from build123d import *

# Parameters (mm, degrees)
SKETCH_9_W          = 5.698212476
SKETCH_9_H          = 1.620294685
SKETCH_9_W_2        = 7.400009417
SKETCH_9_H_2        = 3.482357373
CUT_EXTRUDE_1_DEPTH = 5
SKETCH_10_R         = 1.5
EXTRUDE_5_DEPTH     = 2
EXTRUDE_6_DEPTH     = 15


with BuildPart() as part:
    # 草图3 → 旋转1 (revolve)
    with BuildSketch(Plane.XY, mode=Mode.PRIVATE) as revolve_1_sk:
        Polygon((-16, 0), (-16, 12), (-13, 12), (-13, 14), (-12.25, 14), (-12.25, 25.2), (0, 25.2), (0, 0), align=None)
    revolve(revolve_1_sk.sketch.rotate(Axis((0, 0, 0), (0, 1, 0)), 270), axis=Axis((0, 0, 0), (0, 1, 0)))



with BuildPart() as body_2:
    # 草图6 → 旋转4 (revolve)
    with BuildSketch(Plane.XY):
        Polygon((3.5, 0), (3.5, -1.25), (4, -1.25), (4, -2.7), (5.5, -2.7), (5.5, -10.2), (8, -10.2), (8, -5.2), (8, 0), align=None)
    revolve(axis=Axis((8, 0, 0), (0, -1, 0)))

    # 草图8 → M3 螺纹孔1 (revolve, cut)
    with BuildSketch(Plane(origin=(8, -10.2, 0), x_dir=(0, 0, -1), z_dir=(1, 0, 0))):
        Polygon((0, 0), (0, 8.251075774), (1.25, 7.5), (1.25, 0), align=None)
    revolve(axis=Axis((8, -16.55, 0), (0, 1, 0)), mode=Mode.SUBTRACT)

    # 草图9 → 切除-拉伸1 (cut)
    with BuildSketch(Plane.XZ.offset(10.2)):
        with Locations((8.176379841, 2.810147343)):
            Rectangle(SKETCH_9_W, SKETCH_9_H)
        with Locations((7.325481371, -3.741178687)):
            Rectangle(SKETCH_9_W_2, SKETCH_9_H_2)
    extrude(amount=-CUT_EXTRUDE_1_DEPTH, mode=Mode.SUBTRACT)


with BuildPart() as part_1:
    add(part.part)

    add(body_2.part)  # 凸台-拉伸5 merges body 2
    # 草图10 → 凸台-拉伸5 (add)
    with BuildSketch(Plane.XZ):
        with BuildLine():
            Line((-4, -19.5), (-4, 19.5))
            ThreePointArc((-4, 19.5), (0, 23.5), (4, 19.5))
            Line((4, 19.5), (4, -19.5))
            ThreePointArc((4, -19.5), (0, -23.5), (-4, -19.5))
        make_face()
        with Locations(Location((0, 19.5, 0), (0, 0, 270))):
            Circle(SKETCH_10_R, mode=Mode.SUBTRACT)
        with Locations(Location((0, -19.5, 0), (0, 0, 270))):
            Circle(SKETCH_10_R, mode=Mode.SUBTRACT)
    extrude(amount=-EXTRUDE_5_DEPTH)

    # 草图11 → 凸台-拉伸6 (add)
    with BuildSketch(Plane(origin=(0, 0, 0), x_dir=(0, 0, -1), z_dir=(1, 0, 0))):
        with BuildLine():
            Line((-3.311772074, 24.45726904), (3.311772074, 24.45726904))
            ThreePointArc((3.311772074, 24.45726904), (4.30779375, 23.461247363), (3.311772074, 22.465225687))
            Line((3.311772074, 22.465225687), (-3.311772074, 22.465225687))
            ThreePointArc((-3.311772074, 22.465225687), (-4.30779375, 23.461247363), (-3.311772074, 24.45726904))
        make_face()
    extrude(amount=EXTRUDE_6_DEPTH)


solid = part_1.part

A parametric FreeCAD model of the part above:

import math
import FreeCAD as App
import Part
import Sketcher
from FreeCAD import Vector
Q = App.Units.Quantity

doc = App.newDocument("Part")
body = doc.addObject("PartDesign::Body", "Body")

# Sketch on XY plane
sketch1 = body.newObject("Sketcher::SketchObject", "Sketch")
sketch1.AttachmentSupport = (doc.getObject("XY_Plane"), [""])
sketch1.MapMode = "FlatFace"
sketch1.addGeometry(Part.LineSegment(Vector(-16, 12, 0), Vector(-16, 0, 0)), False)
sketch1.addGeometry(Part.LineSegment(Vector(-16, 0, 0), Vector(0, 0, 0)), False)
sketch1.addGeometry(Part.LineSegment(Vector(0, 0, 0), Vector(0, 25.2, 0)), False)
sketch1.addGeometry(Part.LineSegment(Vector(0, 25.2, 0), Vector(-12.2, 25.2, 0)), False)
sketch1.addGeometry(Part.LineSegment(Vector(-12.2, 25.2, 0), Vector(-12.2, 14, 0)), False)
sketch1.addGeometry(Part.LineSegment(Vector(-12.2, 14, 0), Vector(-13, 14, 0)), False)
sketch1.addGeometry(Part.LineSegment(Vector(-13, 14, 0), Vector(-13, 12, 0)), False)
sketch1.addGeometry(Part.LineSegment(Vector(-13, 12, 0), Vector(-16, 12, 0)), False)
sketch1.addConstraint(Sketcher.Constraint("Coincident", 0, 2, 1, 1))
sketch1.addConstraint(Sketcher.Constraint("Coincident", 1, 2, 2, 1))
sketch1.addConstraint(Sketcher.Constraint("Coincident", 2, 2, 3, 1))
sketch1.addConstraint(Sketcher.Constraint("Coincident", 3, 2, 4, 1))
sketch1.addConstraint(Sketcher.Constraint("Coincident", 4, 2, 5, 1))
sketch1.addConstraint(Sketcher.Constraint("Coincident", 5, 2, 6, 1))
sketch1.addConstraint(Sketcher.Constraint("Coincident", 6, 2, 7, 1))
sketch1.addConstraint(Sketcher.Constraint("Coincident", 7, 2, 0, 1))
sketch1.addConstraint(Sketcher.Constraint("Vertical", 0))
sketch1.addConstraint(Sketcher.Constraint("Horizontal", 1))
sketch1.addConstraint(Sketcher.Constraint("Vertical", 2))
sketch1.addConstraint(Sketcher.Constraint("Horizontal", 3))
sketch1.addConstraint(Sketcher.Constraint("Vertical", 4))
sketch1.addConstraint(Sketcher.Constraint("Horizontal", 5))
sketch1.addConstraint(Sketcher.Constraint("Vertical", 6))
sketch1.addConstraint(Sketcher.Constraint("Horizontal", 7))
sketch1.addConstraint(Sketcher.Constraint("Coincident", 1, 2, -1, 1))
sketch1.addConstraint(Sketcher.Constraint("DistanceX", 1, 1, 1, 2, 16.0))
sketch1.addConstraint(Sketcher.Constraint("DistanceX", 7, 2, 7, 1, 3.0))
sketch1.addConstraint(Sketcher.Constraint("DistanceY", 0, 2, 0, 1, 12.0))
sketch1.addConstraint(Sketcher.Constraint("DistanceY", 6, 2, 6, 1, 2.0))
sketch1.addConstraint(Sketcher.Constraint("DistanceY", 2, 1, 2, 2, 25.2))
sketch1.addConstraint(Sketcher.Constraint("DistanceX", 3, 2, 3, 1, 12.25))
revolution = body.newObject("PartDesign::Revolution", "Revolution")
revolution.Profile = sketch1
revolution.ReferenceAxis = (sketch1, ["V_Axis"])
revolution.Angle = 360
body2 = doc.addObject("PartDesign::Body", "Body001")

# Sketch on XY plane
sketch2 = body2.newObject("Sketcher::SketchObject", "Sketch001")
sketch2.AttachmentSupport = (doc.getObject("XY_Plane001"), [""])
sketch2.MapMode = "FlatFace"
sketch2.addGeometry(Part.LineSegment(Vector(3.5, 0, 0), Vector(3.5, -1.2, 0)), False)
sketch2.addGeometry(Part.LineSegment(Vector(3.5, -1.2, 0), Vector(4, -1.2, 0)), False)
sketch2.addGeometry(Part.LineSegment(Vector(4, -1.2, 0), Vector(4, -2.7, 0)), False)
sketch2.addGeometry(Part.LineSegment(Vector(4, -2.7, 0), Vector(5.5, -2.7, 0)), False)
sketch2.addGeometry(Part.LineSegment(Vector(5.5, -2.7, 0), Vector(5.5, -10.2, 0)), False)
sketch2.addGeometry(Part.LineSegment(Vector(5.5, -10.2, 0), Vector(8, -10.2, 0)), False)
sketch2.addGeometry(Part.LineSegment(Vector(8, -10.2, 0), Vector(8, 0, 0)), False)
sketch2.addGeometry(Part.LineSegment(Vector(8, 0, 0), Vector(3.5, 0, 0)), False)
sketch2.addGeometry(Part.LineSegment(Vector(8, 0, 0), Vector(8, -10.2, 0)), True)  # axis
sketch2.addConstraint(Sketcher.Constraint("Coincident", 0, 2, 1, 1))
sketch2.addConstraint(Sketcher.Constraint("Coincident", 1, 2, 2, 1))
sketch2.addConstraint(Sketcher.Constraint("Coincident", 2, 2, 3, 1))
sketch2.addConstraint(Sketcher.Constraint("Coincident", 3, 2, 4, 1))
sketch2.addConstraint(Sketcher.Constraint("Coincident", 4, 2, 5, 1))
sketch2.addConstraint(Sketcher.Constraint("Coincident", 5, 2, 6, 1))
sketch2.addConstraint(Sketcher.Constraint("Coincident", 6, 2, 7, 1))
sketch2.addConstraint(Sketcher.Constraint("Coincident", 7, 2, 0, 1))
sketch2.addConstraint(Sketcher.Constraint("Vertical", 0))
sketch2.addConstraint(Sketcher.Constraint("Horizontal", 1))
sketch2.addConstraint(Sketcher.Constraint("Vertical", 2))
sketch2.addConstraint(Sketcher.Constraint("Horizontal", 3))
sketch2.addConstraint(Sketcher.Constraint("Vertical", 4))
sketch2.addConstraint(Sketcher.Constraint("Horizontal", 5))
sketch2.addConstraint(Sketcher.Constraint("Vertical", 6))
sketch2.addConstraint(Sketcher.Constraint("Horizontal", 7))
sketch2.addConstraint(Sketcher.Constraint("Vertical", 8))
sketch2.addConstraint(Sketcher.Constraint("Coincident", 8, 1, 6, 2))
sketch2.addConstraint(Sketcher.Constraint("PointOnObject", 6, 2, -1))
sketch2.addConstraint(Sketcher.Constraint("Horizontal", 4, 2, 8, 2))
sketch2.addConstraint(Sketcher.Constraint("DistanceX", 1, 1, 1, 2, 0.5))
sketch2.addConstraint(Sketcher.Constraint("DistanceX", 3, 1, 3, 2, 1.5))
sketch2.addConstraint(Sketcher.Constraint("DistanceX", 5, 1, 5, 2, 2.5))
sketch2.addConstraint(Sketcher.Constraint("DistanceY", 4, 2, 4, 1, 7.5))
sketch2.addConstraint(Sketcher.Constraint("DistanceY", 6, 1, 6, 2, 10.2))
sketch2.addConstraint(Sketcher.Constraint("DistanceX", -1, 1, 1, 2, 4.0))
sketch2.addConstraint(Sketcher.Constraint("DistanceY", 0, 2, 0, 1, 1.25))
revolution2 = body2.newObject("PartDesign::Revolution", "Revolution001")
revolution2.Profile = sketch2
revolution2.ReferenceAxis = (sketch2, ["Axis0"])
revolution2.Angle = 360

# Sketch on YZ plane
sketch3 = body2.newObject("Sketcher::SketchObject", "Sketch002")
sketch3.AttachmentSupport = (doc.getObject("YZ_Plane001"), [""])
sketch3.MapMode = "FlatFace"
sketch3.AttachmentOffset = App.Placement(Vector(0, 0, 8), App.Rotation())
sketch3.addGeometry(Part.LineSegment(Vector(-1.9, 0, 0), Vector(-10.2, 0, 0)), False)
sketch3.addGeometry(Part.LineSegment(Vector(-10.2, 0, 0), Vector(-10.2, -1.2, 0)), False)
sketch3.addGeometry(Part.LineSegment(Vector(-10.2, -1.2, 0), Vector(-2.7, -1.2, 0)), False)
sketch3.addGeometry(Part.LineSegment(Vector(-2.7, -1.2, 0), Vector(-1.9, 0, 0)), False)
sketch3.addConstraint(Sketcher.Constraint("Coincident", 0, 2, 1, 1))
sketch3.addConstraint(Sketcher.Constraint("Coincident", 1, 2, 2, 1))
sketch3.addConstraint(Sketcher.Constraint("Coincident", 2, 2, 3, 1))
sketch3.addConstraint(Sketcher.Constraint("Coincident", 3, 2, 0, 1))
sketch3.addConstraint(Sketcher.Constraint("Horizontal", 0))
sketch3.addConstraint(Sketcher.Constraint("Vertical", 1))
sketch3.addConstraint(Sketcher.Constraint("Horizontal", 2))
sketch3.addConstraint(Sketcher.Constraint("PointOnObject", 0, 2, -1))
sketch3.addConstraint(Sketcher.Constraint("Angle", 3, Q("59 deg")))
sketch3.addConstraint(Sketcher.Constraint("DistanceX", 2, 1, 2, 2, 7.5))
sketch3.addConstraint(Sketcher.Constraint("DistanceY", 1, 2, 1, 1, 1.25))
sketch3.addConstraint(Sketcher.Constraint("DistanceX", 0, 2, -1, 1, 10.2))
groove = body2.newObject("PartDesign::Groove", "Groove")
groove.Profile = sketch3
groove.ReferenceAxis = (sketch3, ["H_Axis"])
groove.Angle = 360

# Sketch on XZ plane
sketch4 = body2.newObject("Sketcher::SketchObject", "Sketch003")
sketch4.AttachmentSupport = (doc.getObject("XZ_Plane001"), [""])
sketch4.MapMode = "FlatFace"
sketch4.AttachmentOffset = App.Placement(Vector(0, 0, 10.2), App.Rotation())
sketch4.addGeometry(Part.LineSegment(Vector(5.3, 3.6, 0), Vector(5.3, 2, 0)), False)
sketch4.addGeometry(Part.LineSegment(Vector(5.3, 2, 0), Vector(11, 2, 0)), False)
sketch4.addGeometry(Part.LineSegment(Vector(11, 2, 0), Vector(11, 3.6, 0)), False)
sketch4.addGeometry(Part.LineSegment(Vector(11, 3.6, 0), Vector(5.3, 3.6, 0)), False)
sketch4.addGeometry(Part.LineSegment(Vector(3.6, -2, 0), Vector(3.6, -5.5, 0)), False)
sketch4.addGeometry(Part.LineSegment(Vector(3.6, -5.5, 0), Vector(11, -5.5, 0)), False)
sketch4.addGeometry(Part.LineSegment(Vector(11, -5.5, 0), Vector(11, -2, 0)), False)
sketch4.addGeometry(Part.LineSegment(Vector(11, -2, 0), Vector(3.6, -2, 0)), False)
sketch4.addConstraint(Sketcher.Constraint("Coincident", 0, 2, 1, 1))
sketch4.addConstraint(Sketcher.Constraint("Coincident", 1, 2, 2, 1))
sketch4.addConstraint(Sketcher.Constraint("Coincident", 2, 2, 3, 1))
sketch4.addConstraint(Sketcher.Constraint("Coincident", 3, 2, 0, 1))
sketch4.addConstraint(Sketcher.Constraint("Coincident", 4, 2, 5, 1))
sketch4.addConstraint(Sketcher.Constraint("Coincident", 5, 2, 6, 1))
sketch4.addConstraint(Sketcher.Constraint("Coincident", 6, 2, 7, 1))
sketch4.addConstraint(Sketcher.Constraint("Coincident", 7, 2, 4, 1))
sketch4.addConstraint(Sketcher.Constraint("Vertical", 0))
sketch4.addConstraint(Sketcher.Constraint("Horizontal", 1))
sketch4.addConstraint(Sketcher.Constraint("Vertical", 2))
sketch4.addConstraint(Sketcher.Constraint("Horizontal", 3))
sketch4.addConstraint(Sketcher.Constraint("Vertical", 4))
sketch4.addConstraint(Sketcher.Constraint("Horizontal", 5))
sketch4.addConstraint(Sketcher.Constraint("Vertical", 6))
sketch4.addConstraint(Sketcher.Constraint("Horizontal", 7))
sketch4.addConstraint(Sketcher.Constraint("Symmetric", 1, 2, 6, 2, -1))
sketch4.addConstraint(Sketcher.Constraint("DistanceY", -1, 1, 0, 2, 2.0))
sketch4.addConstraint(Sketcher.Constraint("DistanceX", 5, 1, 5, 2, 7.400009))
sketch4.addConstraint(Sketcher.Constraint("DistanceX", 1, 1, 1, 2, 5.698212))
sketch4.addConstraint(Sketcher.Constraint("DistanceY", 0, 2, 0, 1, 1.620295))
sketch4.addConstraint(Sketcher.Constraint("DistanceY", 4, 2, 4, 1, 3.482357))
sketch4.addConstraint(Sketcher.Constraint("DistanceX", -1, 1, 0, 2, 5.327274))
pocket1 = body2.newObject("PartDesign::Pocket", "Pocket")
pocket1.Profile = sketch4
pocket1.Length = 5
doc.recompute()

boolean = body.newObject("PartDesign::Boolean", "Boolean")
boolean.Type = "Fuse"
boolean.addObjects([body2])

# Sketch on XZ plane
sketch5 = body.newObject("Sketcher::SketchObject", "Sketch004")
sketch5.AttachmentSupport = (doc.getObject("XZ_Plane"), [""])
sketch5.MapMode = "FlatFace"
sketch5.addGeometry(Part.LineSegment(Vector(-4, 19.5, 0), Vector(-4, -19.5, 0)), False)
sketch5.addGeometry(Part.ArcOfCircle(Part.Circle(Vector(0, -19.5, 0), Vector(0, 0, 1), 4), math.radians(180), math.radians(360)), False)
sketch5.addGeometry(Part.LineSegment(Vector(4, -19.5, 0), Vector(4, 19.5, 0)), False)
sketch5.addGeometry(Part.ArcOfCircle(Part.Circle(Vector(0, 19.5, 0), Vector(0, 0, 1), 4), math.radians(0), math.radians(180)), False)
sketch5.addGeometry(Part.Circle(Vector(0, -19.5, 0), Vector(0, 0, 1), 1.5), False)
sketch5.addGeometry(Part.Circle(Vector(0, 19.5, 0), Vector(0, 0, 1), 1.5), False)
sketch5.addConstraint(Sketcher.Constraint("Tangent", 0, 2, 1, 1))
sketch5.addConstraint(Sketcher.Constraint("Tangent", 1, 2, 2, 1))
sketch5.addConstraint(Sketcher.Constraint("Tangent", 2, 2, 3, 1))
sketch5.addConstraint(Sketcher.Constraint("Tangent", 3, 2, 0, 1))
sketch5.addConstraint(Sketcher.Constraint("Vertical", 0))
sketch5.addConstraint(Sketcher.Constraint("Vertical", 2))
sketch5.addConstraint(Sketcher.Constraint("Coincident", 4, 3, 1, 3))
sketch5.addConstraint(Sketcher.Constraint("Coincident", 5, 3, 3, 3))
sketch5.addConstraint(Sketcher.Constraint("Equal", 4, 5))
sketch5.addConstraint(Sketcher.Constraint("Symmetric", 1, 3, 3, 3, -1, 1))
sketch5.addConstraint(Sketcher.Constraint("Diameter", 4, 3.0))
sketch5.addConstraint(Sketcher.Constraint("Radius", 1, 4.0))
sketch5.addConstraint(Sketcher.Constraint("DistanceY", 0, 2, 0, 1, 39.0))
pad1 = body.newObject("PartDesign::Pad", "Pad")
pad1.Profile = sketch5
pad1.Length = 2
pad1.Reversed = True

# Sketch on YZ plane
sketch6 = body.newObject("Sketcher::SketchObject", "Sketch005")
sketch6.AttachmentSupport = (doc.getObject("YZ_Plane"), [""])
sketch6.MapMode = "FlatFace"
sketch6.addGeometry(Part.LineSegment(Vector(24.5, -3.3, 0), Vector(24.5, 3.3, 0)), False)
sketch6.addGeometry(Part.ArcOfCircle(Part.Circle(Vector(23.5, 3.3, 0), Vector(0, 0, 1), 1), math.radians(0), math.radians(180)), False)
sketch6.addGeometry(Part.LineSegment(Vector(22.5, 3.3, 0), Vector(22.5, -3.3, 0)), False)
sketch6.addGeometry(Part.ArcOfCircle(Part.Circle(Vector(23.5, -3.3, 0), Vector(0, 0, 1), 1), math.radians(180), math.radians(360)), False)
sketch6.addConstraint(Sketcher.Constraint("Tangent", 0, 2, 1, 1))
sketch6.addConstraint(Sketcher.Constraint("Tangent", 1, 2, 2, 1))
sketch6.addConstraint(Sketcher.Constraint("Tangent", 2, 2, 3, 1))
sketch6.addConstraint(Sketcher.Constraint("Tangent", 3, 2, 0, 1))
sketch6.addConstraint(Sketcher.Constraint("Vertical", 0))
sketch6.addConstraint(Sketcher.Constraint("Vertical", 2))
sketch6.addConstraint(Sketcher.Constraint("Radius", 1, 0.996022))
sketch6.addConstraint(Sketcher.Constraint("DistanceY", 0, 1, 0, 2, 6.623544))
sketch6.addConstraint(Sketcher.Constraint("DistanceX", -1, 1, 0, 2, 24.457269))
sketch6.addConstraint(Sketcher.Constraint("DistanceY", -1, 1, 1, 3, 3.311772))
pad2 = body.newObject("PartDesign::Pad", "Pad001")
pad2.Profile = sketch6
pad2.Length = 15

doc.recompute()
